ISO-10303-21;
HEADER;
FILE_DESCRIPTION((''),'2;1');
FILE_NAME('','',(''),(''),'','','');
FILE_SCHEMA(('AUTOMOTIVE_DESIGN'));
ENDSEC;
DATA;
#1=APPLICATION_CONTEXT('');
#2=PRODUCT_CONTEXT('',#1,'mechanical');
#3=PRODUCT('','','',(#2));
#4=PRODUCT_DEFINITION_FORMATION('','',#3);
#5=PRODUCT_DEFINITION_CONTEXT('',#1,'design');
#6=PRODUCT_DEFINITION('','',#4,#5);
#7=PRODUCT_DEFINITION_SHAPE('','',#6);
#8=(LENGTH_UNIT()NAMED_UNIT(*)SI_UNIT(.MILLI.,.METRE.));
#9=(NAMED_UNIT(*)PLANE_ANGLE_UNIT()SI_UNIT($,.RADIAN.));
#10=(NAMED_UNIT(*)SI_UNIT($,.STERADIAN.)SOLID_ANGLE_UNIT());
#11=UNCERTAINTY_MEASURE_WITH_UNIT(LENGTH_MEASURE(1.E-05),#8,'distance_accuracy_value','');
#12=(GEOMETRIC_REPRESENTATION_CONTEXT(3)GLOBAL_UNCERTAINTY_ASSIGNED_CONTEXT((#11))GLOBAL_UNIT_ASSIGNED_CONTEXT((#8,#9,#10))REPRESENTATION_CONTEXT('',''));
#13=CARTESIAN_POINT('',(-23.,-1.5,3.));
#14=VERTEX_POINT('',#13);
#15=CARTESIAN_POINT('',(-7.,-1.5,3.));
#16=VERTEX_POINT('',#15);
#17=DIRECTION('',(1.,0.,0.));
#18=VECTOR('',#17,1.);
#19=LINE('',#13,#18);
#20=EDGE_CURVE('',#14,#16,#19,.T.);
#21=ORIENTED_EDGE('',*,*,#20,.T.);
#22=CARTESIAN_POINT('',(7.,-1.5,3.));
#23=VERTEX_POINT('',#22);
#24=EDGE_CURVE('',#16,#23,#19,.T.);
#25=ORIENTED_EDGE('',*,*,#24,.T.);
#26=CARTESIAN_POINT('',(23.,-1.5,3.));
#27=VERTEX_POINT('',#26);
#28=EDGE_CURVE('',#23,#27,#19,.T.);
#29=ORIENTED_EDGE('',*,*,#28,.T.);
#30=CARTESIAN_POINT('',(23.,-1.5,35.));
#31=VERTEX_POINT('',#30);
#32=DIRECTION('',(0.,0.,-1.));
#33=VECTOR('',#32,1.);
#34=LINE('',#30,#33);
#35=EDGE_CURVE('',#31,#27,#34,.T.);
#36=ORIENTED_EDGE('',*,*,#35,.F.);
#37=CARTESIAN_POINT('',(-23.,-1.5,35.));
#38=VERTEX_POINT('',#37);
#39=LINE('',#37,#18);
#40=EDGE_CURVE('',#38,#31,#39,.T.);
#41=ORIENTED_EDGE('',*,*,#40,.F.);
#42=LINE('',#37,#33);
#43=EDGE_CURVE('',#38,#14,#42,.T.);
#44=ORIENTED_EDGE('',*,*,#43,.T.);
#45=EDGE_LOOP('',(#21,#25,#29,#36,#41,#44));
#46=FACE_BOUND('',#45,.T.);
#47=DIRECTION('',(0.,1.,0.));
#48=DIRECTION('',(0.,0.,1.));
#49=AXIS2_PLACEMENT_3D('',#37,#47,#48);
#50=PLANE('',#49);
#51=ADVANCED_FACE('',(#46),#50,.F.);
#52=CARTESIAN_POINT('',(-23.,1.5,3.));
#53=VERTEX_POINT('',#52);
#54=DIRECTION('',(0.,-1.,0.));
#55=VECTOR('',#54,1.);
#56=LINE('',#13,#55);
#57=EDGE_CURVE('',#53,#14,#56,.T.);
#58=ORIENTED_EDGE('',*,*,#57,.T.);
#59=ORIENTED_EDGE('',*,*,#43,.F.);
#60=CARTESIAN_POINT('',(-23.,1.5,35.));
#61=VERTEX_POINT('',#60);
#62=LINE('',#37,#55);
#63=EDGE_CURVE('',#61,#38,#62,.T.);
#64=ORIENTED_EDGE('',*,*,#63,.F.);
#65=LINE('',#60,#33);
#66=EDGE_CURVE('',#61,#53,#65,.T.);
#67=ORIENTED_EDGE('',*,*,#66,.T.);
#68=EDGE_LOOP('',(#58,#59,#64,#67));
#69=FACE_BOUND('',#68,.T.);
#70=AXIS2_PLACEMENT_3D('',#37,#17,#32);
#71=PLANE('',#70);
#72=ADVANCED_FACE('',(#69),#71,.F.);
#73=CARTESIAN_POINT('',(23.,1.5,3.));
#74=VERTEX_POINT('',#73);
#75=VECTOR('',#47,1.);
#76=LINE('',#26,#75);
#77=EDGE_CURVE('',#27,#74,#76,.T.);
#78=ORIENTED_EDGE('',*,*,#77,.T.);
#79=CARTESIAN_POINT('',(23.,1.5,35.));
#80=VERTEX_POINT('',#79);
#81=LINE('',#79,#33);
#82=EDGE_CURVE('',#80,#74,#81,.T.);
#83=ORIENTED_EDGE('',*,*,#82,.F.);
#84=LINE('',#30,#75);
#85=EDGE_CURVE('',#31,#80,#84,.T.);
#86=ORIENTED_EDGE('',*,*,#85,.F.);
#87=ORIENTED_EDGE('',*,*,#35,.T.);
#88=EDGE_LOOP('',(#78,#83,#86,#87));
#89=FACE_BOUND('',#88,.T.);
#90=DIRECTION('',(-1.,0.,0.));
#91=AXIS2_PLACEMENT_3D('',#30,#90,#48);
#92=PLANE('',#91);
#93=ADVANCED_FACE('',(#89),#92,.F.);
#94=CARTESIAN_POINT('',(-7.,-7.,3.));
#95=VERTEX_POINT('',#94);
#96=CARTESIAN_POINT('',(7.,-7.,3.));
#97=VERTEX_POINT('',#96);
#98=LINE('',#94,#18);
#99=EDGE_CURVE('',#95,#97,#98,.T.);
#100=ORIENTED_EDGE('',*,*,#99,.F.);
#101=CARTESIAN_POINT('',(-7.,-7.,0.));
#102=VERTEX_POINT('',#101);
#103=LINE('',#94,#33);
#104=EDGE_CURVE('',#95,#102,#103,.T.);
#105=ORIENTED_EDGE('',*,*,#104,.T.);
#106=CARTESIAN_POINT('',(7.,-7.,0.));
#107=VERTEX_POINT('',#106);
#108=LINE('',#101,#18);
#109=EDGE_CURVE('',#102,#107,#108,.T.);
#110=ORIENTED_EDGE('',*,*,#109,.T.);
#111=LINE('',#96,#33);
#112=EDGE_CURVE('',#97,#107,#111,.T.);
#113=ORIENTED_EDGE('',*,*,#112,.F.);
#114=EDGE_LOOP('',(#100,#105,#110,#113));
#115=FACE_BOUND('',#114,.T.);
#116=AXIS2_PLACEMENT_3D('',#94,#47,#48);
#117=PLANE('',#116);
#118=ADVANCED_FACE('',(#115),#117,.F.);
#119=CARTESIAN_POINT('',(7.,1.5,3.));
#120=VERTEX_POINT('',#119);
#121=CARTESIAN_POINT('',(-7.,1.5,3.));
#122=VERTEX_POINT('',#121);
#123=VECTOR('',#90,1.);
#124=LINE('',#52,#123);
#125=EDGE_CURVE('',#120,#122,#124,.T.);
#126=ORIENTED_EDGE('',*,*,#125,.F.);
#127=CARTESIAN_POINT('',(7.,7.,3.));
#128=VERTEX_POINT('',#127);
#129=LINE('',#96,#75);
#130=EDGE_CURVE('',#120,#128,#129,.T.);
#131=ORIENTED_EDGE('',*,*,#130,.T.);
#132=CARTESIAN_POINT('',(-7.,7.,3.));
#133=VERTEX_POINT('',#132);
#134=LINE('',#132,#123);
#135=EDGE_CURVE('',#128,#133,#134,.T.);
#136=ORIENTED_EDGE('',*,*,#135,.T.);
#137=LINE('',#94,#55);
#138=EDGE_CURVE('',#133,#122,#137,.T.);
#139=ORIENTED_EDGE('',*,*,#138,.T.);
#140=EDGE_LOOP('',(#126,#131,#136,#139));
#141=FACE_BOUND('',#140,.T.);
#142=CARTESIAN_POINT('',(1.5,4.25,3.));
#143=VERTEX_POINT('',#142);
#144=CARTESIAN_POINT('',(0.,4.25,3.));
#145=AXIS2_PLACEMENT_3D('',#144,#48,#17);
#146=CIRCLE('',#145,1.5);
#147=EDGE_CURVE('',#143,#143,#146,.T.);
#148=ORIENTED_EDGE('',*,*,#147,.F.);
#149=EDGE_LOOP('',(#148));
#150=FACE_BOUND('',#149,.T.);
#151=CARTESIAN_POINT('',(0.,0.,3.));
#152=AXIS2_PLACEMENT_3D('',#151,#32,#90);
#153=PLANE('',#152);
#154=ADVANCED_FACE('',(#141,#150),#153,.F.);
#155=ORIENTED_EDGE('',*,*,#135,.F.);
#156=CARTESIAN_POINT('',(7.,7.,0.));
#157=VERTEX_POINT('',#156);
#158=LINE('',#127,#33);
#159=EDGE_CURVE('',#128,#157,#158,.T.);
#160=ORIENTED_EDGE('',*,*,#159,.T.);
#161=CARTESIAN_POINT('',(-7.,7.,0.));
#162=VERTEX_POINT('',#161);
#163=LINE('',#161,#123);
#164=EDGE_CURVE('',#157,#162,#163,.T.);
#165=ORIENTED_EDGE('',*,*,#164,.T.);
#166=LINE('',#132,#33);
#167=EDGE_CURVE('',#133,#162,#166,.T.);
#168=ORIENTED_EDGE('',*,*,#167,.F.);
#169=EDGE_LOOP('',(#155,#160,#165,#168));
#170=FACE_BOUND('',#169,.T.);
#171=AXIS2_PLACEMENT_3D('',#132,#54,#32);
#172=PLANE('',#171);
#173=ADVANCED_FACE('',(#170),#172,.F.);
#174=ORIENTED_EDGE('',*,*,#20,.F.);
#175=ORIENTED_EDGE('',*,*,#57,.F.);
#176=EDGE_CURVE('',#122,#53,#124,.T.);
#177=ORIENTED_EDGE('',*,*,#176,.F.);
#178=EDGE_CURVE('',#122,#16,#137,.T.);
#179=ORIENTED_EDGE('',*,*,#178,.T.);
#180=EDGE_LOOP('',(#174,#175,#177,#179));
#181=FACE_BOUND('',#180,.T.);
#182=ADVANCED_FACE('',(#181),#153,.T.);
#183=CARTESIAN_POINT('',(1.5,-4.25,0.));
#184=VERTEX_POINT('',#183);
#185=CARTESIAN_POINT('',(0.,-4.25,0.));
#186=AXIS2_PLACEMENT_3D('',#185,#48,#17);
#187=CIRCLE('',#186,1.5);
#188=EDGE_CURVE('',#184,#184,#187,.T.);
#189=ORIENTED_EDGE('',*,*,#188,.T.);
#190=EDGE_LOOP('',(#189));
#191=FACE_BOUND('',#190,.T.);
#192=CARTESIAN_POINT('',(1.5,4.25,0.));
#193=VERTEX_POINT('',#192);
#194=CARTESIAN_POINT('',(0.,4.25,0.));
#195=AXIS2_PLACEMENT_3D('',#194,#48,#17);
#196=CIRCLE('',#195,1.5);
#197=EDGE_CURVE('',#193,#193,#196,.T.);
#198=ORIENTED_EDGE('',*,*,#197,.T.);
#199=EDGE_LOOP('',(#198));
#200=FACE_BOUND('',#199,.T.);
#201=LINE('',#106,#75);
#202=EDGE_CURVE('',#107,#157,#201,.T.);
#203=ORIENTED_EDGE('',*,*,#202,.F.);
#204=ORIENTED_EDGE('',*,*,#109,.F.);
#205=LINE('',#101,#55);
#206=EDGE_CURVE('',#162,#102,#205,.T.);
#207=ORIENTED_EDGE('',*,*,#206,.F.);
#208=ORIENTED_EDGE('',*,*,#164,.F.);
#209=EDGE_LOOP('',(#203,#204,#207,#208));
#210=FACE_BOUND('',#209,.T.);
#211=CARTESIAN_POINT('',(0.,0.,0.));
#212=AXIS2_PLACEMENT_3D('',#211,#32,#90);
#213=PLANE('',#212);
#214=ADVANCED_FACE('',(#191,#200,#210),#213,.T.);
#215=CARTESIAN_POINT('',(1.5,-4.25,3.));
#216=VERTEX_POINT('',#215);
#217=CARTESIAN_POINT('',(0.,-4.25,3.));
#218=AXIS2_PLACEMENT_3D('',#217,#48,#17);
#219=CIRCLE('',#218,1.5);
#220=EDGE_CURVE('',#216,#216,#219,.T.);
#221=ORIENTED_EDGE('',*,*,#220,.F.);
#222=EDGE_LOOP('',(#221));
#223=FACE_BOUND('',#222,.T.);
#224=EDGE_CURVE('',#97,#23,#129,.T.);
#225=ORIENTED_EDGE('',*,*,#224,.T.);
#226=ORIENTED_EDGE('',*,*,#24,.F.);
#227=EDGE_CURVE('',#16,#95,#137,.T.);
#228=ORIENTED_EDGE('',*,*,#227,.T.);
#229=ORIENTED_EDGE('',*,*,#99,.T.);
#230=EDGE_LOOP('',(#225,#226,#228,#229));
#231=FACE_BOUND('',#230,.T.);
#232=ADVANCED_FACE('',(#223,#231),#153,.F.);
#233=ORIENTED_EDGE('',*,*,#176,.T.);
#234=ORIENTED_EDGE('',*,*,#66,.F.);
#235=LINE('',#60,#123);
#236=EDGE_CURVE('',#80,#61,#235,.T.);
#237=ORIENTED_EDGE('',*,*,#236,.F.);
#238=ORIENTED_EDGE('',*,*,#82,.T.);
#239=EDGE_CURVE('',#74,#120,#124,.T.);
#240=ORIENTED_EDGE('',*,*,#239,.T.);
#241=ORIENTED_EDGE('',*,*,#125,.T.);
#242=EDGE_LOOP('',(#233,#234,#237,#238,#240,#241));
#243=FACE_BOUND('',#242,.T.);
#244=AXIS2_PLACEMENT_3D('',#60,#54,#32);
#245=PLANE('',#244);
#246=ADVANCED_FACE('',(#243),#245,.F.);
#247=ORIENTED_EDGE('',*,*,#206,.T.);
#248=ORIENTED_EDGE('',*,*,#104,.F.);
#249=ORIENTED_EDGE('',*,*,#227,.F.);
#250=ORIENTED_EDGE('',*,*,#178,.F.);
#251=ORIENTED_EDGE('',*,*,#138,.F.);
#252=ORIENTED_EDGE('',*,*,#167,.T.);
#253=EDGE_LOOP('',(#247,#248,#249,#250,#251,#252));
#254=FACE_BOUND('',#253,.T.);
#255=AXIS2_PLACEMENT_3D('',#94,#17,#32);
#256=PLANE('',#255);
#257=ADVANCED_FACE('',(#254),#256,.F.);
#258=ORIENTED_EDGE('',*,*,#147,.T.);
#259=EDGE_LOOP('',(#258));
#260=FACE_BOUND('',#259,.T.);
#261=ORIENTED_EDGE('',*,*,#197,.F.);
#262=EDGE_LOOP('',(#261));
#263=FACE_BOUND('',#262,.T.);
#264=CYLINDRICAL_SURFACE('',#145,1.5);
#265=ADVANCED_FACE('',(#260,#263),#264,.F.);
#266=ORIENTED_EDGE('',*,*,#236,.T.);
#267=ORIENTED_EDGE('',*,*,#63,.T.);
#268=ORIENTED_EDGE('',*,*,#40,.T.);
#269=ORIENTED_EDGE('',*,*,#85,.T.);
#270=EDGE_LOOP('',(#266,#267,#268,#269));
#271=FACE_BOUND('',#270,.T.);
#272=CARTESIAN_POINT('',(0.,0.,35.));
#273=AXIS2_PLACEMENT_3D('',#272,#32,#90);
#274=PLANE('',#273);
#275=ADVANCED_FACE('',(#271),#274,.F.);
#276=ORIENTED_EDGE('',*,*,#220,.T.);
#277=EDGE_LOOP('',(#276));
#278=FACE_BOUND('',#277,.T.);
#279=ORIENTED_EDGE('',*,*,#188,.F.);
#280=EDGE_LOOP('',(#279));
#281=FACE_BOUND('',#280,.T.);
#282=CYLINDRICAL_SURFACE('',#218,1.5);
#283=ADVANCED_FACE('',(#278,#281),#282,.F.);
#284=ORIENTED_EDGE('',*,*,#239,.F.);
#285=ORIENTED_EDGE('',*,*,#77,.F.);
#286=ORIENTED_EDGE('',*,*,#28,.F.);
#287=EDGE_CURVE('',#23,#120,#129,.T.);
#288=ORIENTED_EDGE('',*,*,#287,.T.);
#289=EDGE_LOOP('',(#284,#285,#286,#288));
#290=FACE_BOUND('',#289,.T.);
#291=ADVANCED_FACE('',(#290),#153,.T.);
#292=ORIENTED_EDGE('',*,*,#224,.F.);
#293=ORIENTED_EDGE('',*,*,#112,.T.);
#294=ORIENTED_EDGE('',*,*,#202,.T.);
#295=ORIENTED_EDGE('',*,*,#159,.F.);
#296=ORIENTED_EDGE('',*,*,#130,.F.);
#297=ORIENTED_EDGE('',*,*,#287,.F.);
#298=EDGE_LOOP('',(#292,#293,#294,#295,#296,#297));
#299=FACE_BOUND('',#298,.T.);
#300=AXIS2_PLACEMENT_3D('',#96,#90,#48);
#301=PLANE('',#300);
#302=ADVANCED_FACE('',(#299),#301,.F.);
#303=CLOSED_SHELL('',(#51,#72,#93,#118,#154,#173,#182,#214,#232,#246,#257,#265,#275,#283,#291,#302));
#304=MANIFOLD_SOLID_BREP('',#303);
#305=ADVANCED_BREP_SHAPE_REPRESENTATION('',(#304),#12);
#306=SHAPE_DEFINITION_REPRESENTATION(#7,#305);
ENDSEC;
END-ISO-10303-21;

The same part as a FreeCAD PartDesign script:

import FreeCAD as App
import Part
import Sketcher

V = App.Vector

doc = App.newDocument("Part")
body = doc.addObject("PartDesign::Body", "Body")

# Sketch on XY plane
sketch1 = body.newObject("Sketcher::SketchObject", "Sketch")
sketch1.AttachmentSupport = (doc.getObject("XY_Plane"), [""])
sketch1.MapMode = "FlatFace"
sketch1.addGeometry([
    Part.LineSegment(V(-7, 7, 0), V(-7, -7, 0)),
    Part.LineSegment(V(-7, -7, 0), V(7, -7, 0)),
    Part.LineSegment(V(7, -7, 0), V(7, 7, 0)),
    Part.LineSegment(V(7, 7, 0), V(-7, 7, 0)),
], False)
sketch1.addConstraint([
    Sketcher.Constraint("Coincident", 0, 2, 1, 1),
    Sketcher.Constraint("Coincident", 1, 2, 2, 1),
    Sketcher.Constraint("Coincident", 2, 2, 3, 1),
    Sketcher.Constraint("Coincident", 3, 2, 0, 1),
    Sketcher.Constraint("Vertical", 0),
    Sketcher.Constraint("Horizontal", 1),
    Sketcher.Constraint("Vertical", 2),
    Sketcher.Constraint("Horizontal", 3),
    Sketcher.Constraint("Symmetric", 0, 2, 2, 2, -1, 1),
    Sketcher.Constraint("Equal", 3, 0),
    Sketcher.Constraint("DistanceX", 1, 1, 1, 2, 14.0),
])
pad1 = body.newObject("PartDesign::Pad", "Pad")
pad1.Profile = sketch1
pad1.Length = 3

# Sketch on XY plane
sketch2 = body.newObject("Sketcher::SketchObject", "Sketch001")
sketch2.AttachmentSupport = (doc.getObject("XY_Plane"), [""])
sketch2.MapMode = "FlatFace"
sketch2.AttachmentOffset = App.Placement(V(0, 0, 3), App.Rotation())
sketch2.addGeometry([
    Part.LineSegment(V(-23, 1.5, 0), V(-23, -1.5, 0)),
    Part.LineSegment(V(-23, -1.5, 0), V(23, -1.5, 0)),
    Part.LineSegment(V(23, -1.5, 0), V(23, 1.5, 0)),
    Part.LineSegment(V(23, 1.5, 0), V(-23, 1.5, 0)),
], False)
sketch2.addConstraint([
    Sketcher.Constraint("Coincident", 0, 2, 1, 1),
    Sketcher.Constraint("Coincident", 1, 2, 2, 1),
    Sketcher.Constraint("Coincident", 2, 2, 3, 1),
    Sketcher.Constraint("Coincident", 3, 2, 0, 1),
    Sketcher.Constraint("Vertical", 0),
    Sketcher.Constraint("Horizontal", 1),
    Sketcher.Constraint("Vertical", 2),
    Sketcher.Constraint("Horizontal", 3),
    Sketcher.Constraint("Symmetric", 0, 2, 2, 2, -1, 1),
    Sketcher.Constraint("DistanceX", 1, 1, 1, 2, 46.0),
    Sketcher.Constraint("DistanceY", 0, 2, 0, 1, 3.0),
])
pad2 = body.newObject("PartDesign::Pad", "Pad001")
pad2.Profile = sketch2
pad2.Length = 32

# Sketch on XY plane
sketch3 = body.newObject("Sketcher::SketchObject", "Sketch002")
sketch3.AttachmentSupport = (doc.getObject("XY_Plane"), [""])
sketch3.MapMode = "FlatFace"
sketch3.AttachmentOffset = App.Placement(V(0, 0, 3), App.Rotation())
sketch3.addGeometry([
    Part.Circle(V(0, 4.25, 0), V(0, 0, 1), 1.5),
    Part.Circle(V(0, -4.25, 0), V(0, 0, 1), 1.5),
], False)
sketch3.addConstraint([
    Sketcher.Constraint("Equal", 0, 1),
    Sketcher.Constraint("Symmetric", 0, 3, 1, 3, -1, 1),
    Sketcher.Constraint("PointOnObject", 0, 3, -2),
    Sketcher.Constraint("Diameter", 0, 3.0),
    Sketcher.Constraint("DistanceY", 1, 3, 0, 3, 8.5),
])
doc.recompute()
hole = body.newObject("PartDesign::Hole", "Hole")
hole.Profile = sketch3
hole.ThreadType = "None"
hole.Diameter = 3
hole.DepthType = "ThroughAll"

doc.recompute()
